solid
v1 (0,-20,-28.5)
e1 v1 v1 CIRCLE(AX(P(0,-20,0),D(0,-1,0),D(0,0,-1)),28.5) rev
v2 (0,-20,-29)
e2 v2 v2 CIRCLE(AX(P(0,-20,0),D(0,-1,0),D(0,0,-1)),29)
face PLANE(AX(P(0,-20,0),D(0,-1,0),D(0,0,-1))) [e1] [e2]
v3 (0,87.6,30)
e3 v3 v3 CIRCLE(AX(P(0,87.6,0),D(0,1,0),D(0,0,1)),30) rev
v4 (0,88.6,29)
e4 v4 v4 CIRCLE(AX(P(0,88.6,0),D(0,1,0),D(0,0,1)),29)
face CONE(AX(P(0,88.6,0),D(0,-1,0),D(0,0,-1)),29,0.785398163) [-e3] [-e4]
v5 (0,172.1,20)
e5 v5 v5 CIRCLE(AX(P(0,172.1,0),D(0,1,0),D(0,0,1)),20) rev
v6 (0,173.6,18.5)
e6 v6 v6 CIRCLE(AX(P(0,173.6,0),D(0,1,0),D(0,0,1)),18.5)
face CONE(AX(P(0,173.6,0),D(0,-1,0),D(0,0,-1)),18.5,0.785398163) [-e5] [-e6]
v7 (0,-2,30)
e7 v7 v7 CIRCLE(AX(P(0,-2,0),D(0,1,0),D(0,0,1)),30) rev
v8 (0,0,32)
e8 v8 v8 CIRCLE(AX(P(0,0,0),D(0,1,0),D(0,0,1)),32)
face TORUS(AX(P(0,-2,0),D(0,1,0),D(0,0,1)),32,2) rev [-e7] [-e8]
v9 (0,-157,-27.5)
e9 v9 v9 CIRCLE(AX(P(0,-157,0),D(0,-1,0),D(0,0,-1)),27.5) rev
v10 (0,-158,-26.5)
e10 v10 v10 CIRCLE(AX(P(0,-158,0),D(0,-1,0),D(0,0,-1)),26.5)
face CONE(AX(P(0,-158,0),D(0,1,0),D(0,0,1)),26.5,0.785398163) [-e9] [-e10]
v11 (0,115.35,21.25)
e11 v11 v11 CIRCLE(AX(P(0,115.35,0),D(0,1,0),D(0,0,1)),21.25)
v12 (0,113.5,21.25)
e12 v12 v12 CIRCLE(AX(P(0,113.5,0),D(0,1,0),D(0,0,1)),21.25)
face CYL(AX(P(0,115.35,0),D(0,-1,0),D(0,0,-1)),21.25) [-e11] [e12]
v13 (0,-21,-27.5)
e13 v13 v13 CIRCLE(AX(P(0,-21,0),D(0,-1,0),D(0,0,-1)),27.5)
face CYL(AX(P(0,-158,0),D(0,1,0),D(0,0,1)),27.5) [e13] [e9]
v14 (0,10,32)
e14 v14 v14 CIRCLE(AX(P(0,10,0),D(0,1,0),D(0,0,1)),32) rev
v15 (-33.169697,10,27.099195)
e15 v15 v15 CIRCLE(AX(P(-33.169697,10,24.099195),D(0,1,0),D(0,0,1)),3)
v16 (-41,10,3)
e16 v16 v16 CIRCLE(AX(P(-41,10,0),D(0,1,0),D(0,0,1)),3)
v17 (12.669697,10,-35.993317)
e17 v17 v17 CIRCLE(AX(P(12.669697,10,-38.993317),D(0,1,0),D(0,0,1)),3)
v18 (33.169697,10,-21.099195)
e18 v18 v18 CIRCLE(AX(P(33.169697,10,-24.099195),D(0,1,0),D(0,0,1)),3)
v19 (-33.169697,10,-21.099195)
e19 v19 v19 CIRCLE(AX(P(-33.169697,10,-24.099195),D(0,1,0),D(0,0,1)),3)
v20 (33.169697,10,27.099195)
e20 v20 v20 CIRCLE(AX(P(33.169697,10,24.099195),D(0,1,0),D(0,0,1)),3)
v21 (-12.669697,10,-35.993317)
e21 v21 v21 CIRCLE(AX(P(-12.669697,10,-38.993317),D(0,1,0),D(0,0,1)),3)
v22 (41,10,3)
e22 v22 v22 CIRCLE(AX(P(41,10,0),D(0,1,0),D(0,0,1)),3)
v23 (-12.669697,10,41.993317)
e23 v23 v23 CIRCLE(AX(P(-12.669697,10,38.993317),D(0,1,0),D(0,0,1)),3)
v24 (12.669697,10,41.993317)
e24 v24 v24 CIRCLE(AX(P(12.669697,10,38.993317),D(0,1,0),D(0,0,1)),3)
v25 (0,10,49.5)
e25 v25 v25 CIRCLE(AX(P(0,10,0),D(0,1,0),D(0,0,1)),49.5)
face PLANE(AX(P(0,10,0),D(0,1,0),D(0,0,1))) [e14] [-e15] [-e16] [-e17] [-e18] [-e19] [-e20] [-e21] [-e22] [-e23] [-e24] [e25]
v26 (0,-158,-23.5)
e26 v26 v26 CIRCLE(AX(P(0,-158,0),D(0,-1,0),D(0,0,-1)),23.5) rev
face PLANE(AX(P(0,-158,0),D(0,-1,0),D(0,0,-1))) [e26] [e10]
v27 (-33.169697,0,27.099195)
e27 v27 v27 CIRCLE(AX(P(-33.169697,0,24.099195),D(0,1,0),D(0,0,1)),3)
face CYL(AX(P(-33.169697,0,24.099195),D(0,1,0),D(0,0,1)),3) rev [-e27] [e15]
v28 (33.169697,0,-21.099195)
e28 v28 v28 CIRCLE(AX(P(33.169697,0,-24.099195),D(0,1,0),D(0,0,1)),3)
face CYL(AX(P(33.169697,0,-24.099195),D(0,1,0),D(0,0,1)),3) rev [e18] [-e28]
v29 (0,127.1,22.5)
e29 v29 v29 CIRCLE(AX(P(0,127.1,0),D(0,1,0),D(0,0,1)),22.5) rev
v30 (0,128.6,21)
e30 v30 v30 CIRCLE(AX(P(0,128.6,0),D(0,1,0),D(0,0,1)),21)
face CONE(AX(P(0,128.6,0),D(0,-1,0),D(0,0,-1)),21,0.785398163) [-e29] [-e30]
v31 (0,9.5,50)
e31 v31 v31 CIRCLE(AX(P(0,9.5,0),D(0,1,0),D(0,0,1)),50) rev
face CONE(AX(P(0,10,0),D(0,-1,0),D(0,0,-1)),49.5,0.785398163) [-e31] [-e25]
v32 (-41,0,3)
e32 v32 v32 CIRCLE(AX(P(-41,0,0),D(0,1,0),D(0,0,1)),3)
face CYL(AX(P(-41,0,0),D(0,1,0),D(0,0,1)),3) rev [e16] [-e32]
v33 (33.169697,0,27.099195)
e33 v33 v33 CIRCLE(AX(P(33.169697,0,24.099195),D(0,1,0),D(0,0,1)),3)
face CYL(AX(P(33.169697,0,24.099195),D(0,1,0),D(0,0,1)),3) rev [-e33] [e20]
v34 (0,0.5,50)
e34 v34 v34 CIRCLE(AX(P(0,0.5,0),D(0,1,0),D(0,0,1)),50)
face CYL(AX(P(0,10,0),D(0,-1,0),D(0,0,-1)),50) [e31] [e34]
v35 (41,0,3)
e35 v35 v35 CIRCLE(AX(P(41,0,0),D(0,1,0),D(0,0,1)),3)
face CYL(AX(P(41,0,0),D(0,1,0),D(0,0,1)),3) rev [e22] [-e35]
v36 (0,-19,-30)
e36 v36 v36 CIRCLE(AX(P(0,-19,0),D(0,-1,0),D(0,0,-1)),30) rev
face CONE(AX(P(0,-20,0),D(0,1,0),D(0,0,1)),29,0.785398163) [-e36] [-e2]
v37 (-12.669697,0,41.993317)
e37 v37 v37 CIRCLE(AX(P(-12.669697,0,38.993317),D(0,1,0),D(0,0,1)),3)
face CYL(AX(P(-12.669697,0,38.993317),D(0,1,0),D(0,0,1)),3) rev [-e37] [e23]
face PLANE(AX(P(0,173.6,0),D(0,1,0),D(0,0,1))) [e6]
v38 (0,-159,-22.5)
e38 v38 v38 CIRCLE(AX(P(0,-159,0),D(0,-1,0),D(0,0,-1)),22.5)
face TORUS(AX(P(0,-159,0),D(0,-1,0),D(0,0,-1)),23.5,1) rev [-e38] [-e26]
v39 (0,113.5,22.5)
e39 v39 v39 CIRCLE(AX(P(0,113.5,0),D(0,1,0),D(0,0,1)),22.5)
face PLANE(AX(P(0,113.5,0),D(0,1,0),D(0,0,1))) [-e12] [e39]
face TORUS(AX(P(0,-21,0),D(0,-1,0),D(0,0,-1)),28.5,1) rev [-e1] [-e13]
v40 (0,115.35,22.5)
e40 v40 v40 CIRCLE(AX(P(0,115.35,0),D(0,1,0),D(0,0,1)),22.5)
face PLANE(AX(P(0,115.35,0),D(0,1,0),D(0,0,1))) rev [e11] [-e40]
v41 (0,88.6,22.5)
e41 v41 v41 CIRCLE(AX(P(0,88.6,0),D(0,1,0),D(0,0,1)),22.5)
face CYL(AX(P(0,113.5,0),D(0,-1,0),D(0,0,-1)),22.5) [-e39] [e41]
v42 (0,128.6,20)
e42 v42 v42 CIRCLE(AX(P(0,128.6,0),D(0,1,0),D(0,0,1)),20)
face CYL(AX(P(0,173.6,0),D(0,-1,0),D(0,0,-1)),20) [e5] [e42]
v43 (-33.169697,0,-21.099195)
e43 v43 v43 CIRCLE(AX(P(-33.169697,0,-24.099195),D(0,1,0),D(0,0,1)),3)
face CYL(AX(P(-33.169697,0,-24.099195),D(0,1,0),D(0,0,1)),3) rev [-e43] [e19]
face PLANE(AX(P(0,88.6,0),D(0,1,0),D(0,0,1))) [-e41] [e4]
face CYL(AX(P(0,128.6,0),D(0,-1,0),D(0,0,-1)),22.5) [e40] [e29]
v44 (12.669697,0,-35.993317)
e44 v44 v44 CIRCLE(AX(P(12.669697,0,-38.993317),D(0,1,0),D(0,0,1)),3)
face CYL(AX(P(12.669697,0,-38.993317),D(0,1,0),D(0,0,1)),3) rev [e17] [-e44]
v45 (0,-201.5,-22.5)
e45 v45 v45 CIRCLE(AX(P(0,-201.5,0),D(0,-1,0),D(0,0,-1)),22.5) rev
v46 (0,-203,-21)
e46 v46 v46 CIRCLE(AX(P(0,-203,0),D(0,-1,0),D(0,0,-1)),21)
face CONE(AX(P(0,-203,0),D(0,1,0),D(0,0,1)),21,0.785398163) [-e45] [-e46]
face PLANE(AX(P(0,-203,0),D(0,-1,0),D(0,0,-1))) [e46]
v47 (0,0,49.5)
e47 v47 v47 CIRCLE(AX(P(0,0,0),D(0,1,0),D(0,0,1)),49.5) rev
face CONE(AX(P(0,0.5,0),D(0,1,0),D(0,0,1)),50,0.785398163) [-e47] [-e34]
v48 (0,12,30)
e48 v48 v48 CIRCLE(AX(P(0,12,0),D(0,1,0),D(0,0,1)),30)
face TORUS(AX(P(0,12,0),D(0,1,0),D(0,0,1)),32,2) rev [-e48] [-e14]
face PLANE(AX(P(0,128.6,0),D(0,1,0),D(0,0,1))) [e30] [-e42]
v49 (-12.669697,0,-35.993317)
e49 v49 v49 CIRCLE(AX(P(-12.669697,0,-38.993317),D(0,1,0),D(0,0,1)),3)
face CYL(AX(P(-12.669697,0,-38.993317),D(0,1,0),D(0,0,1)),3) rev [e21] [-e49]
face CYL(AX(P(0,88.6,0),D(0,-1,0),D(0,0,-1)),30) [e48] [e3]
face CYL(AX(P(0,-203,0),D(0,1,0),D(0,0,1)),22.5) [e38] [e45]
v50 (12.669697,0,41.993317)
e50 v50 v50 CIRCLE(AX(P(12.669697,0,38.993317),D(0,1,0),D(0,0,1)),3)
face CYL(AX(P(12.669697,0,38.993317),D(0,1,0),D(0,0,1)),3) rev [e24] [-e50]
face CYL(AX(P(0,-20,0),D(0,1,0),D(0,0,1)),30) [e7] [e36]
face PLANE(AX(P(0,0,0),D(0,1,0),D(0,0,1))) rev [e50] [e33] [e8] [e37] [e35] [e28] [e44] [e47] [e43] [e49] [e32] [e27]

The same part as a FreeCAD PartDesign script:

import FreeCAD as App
import Part
import Sketcher

V = App.Vector
Q = App.Units.Quantity


def edges_at(feature, points):
    """Names of the edges that pass closest to the given points."""
    edges = feature.Shape.Edges
    near = lambda p: min(range(len(edges)), key=lambda i: edges[i].distToShape(Part.Vertex(*p))[0])
    return sorted({f"Edge{near(p) + 1}" for p in points})

doc = App.newDocument("Part")
body = doc.addObject("PartDesign::Body", "Body")

# Sketch on XZ plane
sketch1 = body.newObject("Sketcher::SketchObject", "Sketch")
sketch1.AttachmentSupport = (doc.getObject("XZ_Plane"), [""])
sketch1.MapMode = "FlatFace"
sketch1.addGeometry(Part.Circle(V(0, 0, 0), V(0, 0, 1), 50), False)
sketch1.addConstraint([
    Sketcher.Constraint("Coincident", 0, 3, -1, 1),
    Sketcher.Constraint("Diameter", 0, Q("100 mm")),
])
pad1 = body.newObject("PartDesign::Pad", "Pad")
pad1.Profile = sketch1
pad1.Length = 10
pad1.Reversed = True

# Sketch on XZ plane
sketch2 = body.newObject("Sketcher::SketchObject", "Sketch001")
sketch2.AttachmentSupport = (doc.getObject("XZ_Plane"), [""])
sketch2.MapMode = "FlatFace"
sketch2.AttachmentOffset = App.Placement(V(0, 0, -10), App.Rotation())
sketch2.addGeometry([
    Part.Circle(V(-33.2, -24.1, 0), V(0, 0, 1), 3),  # 0
    Part.Circle(V(33.2, -24.1, 0), V(0, 0, 1), 3),  # 1
    Part.Circle(V(12.7, -39, 0), V(0, 0, 1), 3),  # 2
    Part.Circle(V(41, 0, 0), V(0, 0, 1), 3),  # 3
    Part.Circle(V(33.2, 24.1, 0), V(0, 0, 1), 3),  # 4
    Part.Circle(V(12.7, 39, 0), V(0, 0, 1), 3),  # 5
    Part.Circle(V(-12.7, 39, 0), V(0, 0, 1), 3),  # 6
    Part.Circle(V(-33.2, 24.1, 0), V(0, 0, 1), 3),  # 7
    Part.Circle(V(-41, 0, 0), V(0, 0, 1), 3),  # 8
    Part.Circle(V(-12.7, -39, 0), V(0, 0, 1), 3),  # 9
], False)
sketch2.addConstraint([
    Sketcher.Constraint("Equal", 0, 1),
    Sketcher.Constraint("Equal", 1, 2),
    Sketcher.Constraint("Equal", 2, 3),
    Sketcher.Constraint("Equal", 3, 4),
    Sketcher.Constraint("Equal", 4, 5),
    Sketcher.Constraint("Equal", 5, 6),
    Sketcher.Constraint("Equal", 6, 7),
    Sketcher.Constraint("Equal", 7, 8),
    Sketcher.Constraint("Equal", 8, 9),
    Sketcher.Constraint("Symmetric", 0, 3, 4, 3, -1, 1),
    Sketcher.Constraint("Symmetric", 2, 3, 6, 3, -1, 1),
    Sketcher.Constraint("Symmetric", 1, 3, 7, 3, -1, 1),
    Sketcher.Constraint("Symmetric", 3, 3, 8, 3, -1, 1),
    Sketcher.Constraint("Symmetric", 5, 3, 9, 3, -1, 1),
    Sketcher.Constraint("Symmetric", 0, 3, 1, 3, -2),
    Sketcher.Constraint("Symmetric", 5, 3, 6, 3, -2),
    Sketcher.Constraint("PointOnObject", 3, 3, -1),
    Sketcher.Constraint("Diameter", 0, Q("6 mm")),
    Sketcher.Constraint("DistanceX", -1, 1, 3, 3, Q("41 mm")),
    Sketcher.Constraint("DistanceX", 2, 3, 1, 3, Q("20.5 mm")),
    Sketcher.Constraint("DistanceY", 2, 3, 1, 3, Q("14.894122 mm")),
    Sketcher.Constraint("DistanceY", 1, 3, 4, 3, Q("48.198391 mm")),
    Sketcher.Constraint("DistanceX", 0, 3, -1, 1, Q("33.169697 mm")),
])
pocket1 = body.newObject("PartDesign::Pocket", "Pocket")
pocket1.Profile = sketch2
pocket1.Length = 10
pocket1.Reversed = True

# Sketch on XZ plane
sketch3 = body.newObject("Sketcher::SketchObject", "Sketch002")
sketch3.AttachmentSupport = (doc.getObject("XZ_Plane"), [""])
sketch3.MapMode = "FlatFace"
sketch3.AttachmentOffset = App.Placement(V(0, 0, -10), App.Rotation())
sketch3.addGeometry(Part.Circle(V(0, 0, 0), V(0, 0, 1), 30), False)
sketch3.addConstraint([
    Sketcher.Constraint("Coincident", 0, 3, -1, 1),
    Sketcher.Constraint("Diameter", 0, Q("60 mm")),
])
pad2 = body.newObject("PartDesign::Pad", "Pad001")
pad2.Profile = sketch3
pad2.Length = 78.6
pad2.Reversed = True
doc.recompute()

fillet = body.newObject("PartDesign::Fillet", "Fillet")
fillet.Base = (pad2, edges_at(pad2, [(0, 10, -30)]))
fillet.Radius = 2
doc.recompute()

chamfer = body.newObject("PartDesign::Chamfer", "Chamfer")
chamfer.Base = (fillet, edges_at(fillet, [(0, 88.6, -30)]))
chamfer.Size = 1

# Sketch on XZ plane
sketch4 = body.newObject("Sketcher::SketchObject", "Sketch003")
sketch4.AttachmentSupport = (doc.getObject("XZ_Plane"), [""])
sketch4.MapMode = "FlatFace"
sketch4.AttachmentOffset = App.Placement(V(0, 0, -88.6), App.Rotation())
sketch4.addGeometry(Part.Circle(V(0, 0, 0), V(0, 0, 1), 22), False)
sketch4.addConstraint([
    Sketcher.Constraint("Coincident", 0, 3, -1, 1),
    Sketcher.Constraint("Diameter", 0, Q("45 mm")),
])
pad3 = body.newObject("PartDesign::Pad", "Pad002")
pad3.Profile = sketch4
pad3.Length = 24.9
pad3.Reversed = True

# Sketch on XZ plane
sketch5 = body.newObject("Sketcher::SketchObject", "Sketch004")
sketch5.AttachmentSupport = (doc.getObject("XZ_Plane"), [""])
sketch5.MapMode = "FlatFace"
sketch5.AttachmentOffset = App.Placement(V(0, 0, -113.5), App.Rotation())
sketch5.addGeometry(Part.Circle(V(0, 0, 0), V(0, 0, 1), 21), False)
sketch5.addConstraint([
    Sketcher.Constraint("Coincident", 0, 3, -1, 1),
    Sketcher.Constraint("Diameter", 0, Q("42.5 mm")),
])
pad4 = body.newObject("PartDesign::Pad", "Pad003")
pad4.Profile = sketch5
pad4.Length = 1.85
pad4.Reversed = True

# Sketch on XZ plane
sketch6 = body.newObject("Sketcher::SketchObject", "Sketch005")
sketch6.AttachmentSupport = (doc.getObject("XZ_Plane"), [""])
sketch6.MapMode = "FlatFace"
sketch6.AttachmentOffset = App.Placement(V(0, 0, -115.35), App.Rotation())
sketch6.addGeometry(Part.Circle(V(0, 0, 0), V(0, 0, 1), 22), False)
sketch6.addConstraint([
    Sketcher.Constraint("Coincident", 0, 3, -1, 1),
    Sketcher.Constraint("Diameter", 0, Q("45 mm")),
])
pad5 = body.newObject("PartDesign::Pad", "Pad004")
pad5.Profile = sketch6
pad5.Length = 13.25
pad5.Reversed = True
doc.recompute()

chamfer2 = body.newObject("PartDesign::Chamfer", "Chamfer001")
chamfer2.Base = (pad5, edges_at(pad5, [(0, 128.6, -22.5)]))
chamfer2.Size = 1.5

# Sketch on XZ plane
sketch7 = body.newObject("Sketcher::SketchObject", "Sketch006")
sketch7.AttachmentSupport = (doc.getObject("XZ_Plane"), [""])
sketch7.MapMode = "FlatFace"
sketch7.AttachmentOffset = App.Placement(V(0, 0, -128.6), App.Rotation())
sketch7.addGeometry(Part.Circle(V(0, 0, 0), V(0, 0, 1), 20), False)
sketch7.addConstraint([
    Sketcher.Constraint("Coincident", 0, 3, -1, 1),
    Sketcher.Constraint("Diameter", 0, Q("40 mm")),
])
pad6 = body.newObject("PartDesign::Pad", "Pad005")
pad6.Profile = sketch7
pad6.Length = 45
pad6.Reversed = True
doc.recompute()

chamfer3 = body.newObject("PartDesign::Chamfer", "Chamfer002")
chamfer3.Base = (pad6, edges_at(pad6, [(0, 173.6, -20)]))
chamfer3.Size = 1.5

# Sketch on XZ plane
sketch8 = body.newObject("Sketcher::SketchObject", "Sketch007")
sketch8.AttachmentSupport = (doc.getObject("XZ_Plane"), [""])
sketch8.MapMode = "FlatFace"
sketch8.addGeometry(Part.Circle(V(0, 0, 0), V(0, 0, 1), 30), False)
sketch8.addConstraint([
    Sketcher.Constraint("Coincident", 0, 3, -1, 1),
    Sketcher.Constraint("Diameter", 0, Q("60 mm")),
])
pad7 = body.newObject("PartDesign::Pad", "Pad006")
pad7.Profile = sketch8
pad7.Length = 20
doc.recompute()

chamfer4 = body.newObject("PartDesign::Chamfer", "Chamfer003")
chamfer4.Base = (pad7, edges_at(pad7, [(0, -20, -30)]))
chamfer4.Size = 1
doc.recompute()

fillet2 = body.newObject("PartDesign::Fillet", "Fillet001")
fillet2.Base = (chamfer4, edges_at(chamfer4, [(0, 0, -30)]))
fillet2.Radius = 2
doc.recompute()

chamfer5 = body.newObject("PartDesign::Chamfer", "Chamfer004")
chamfer5.Base = (fillet2, edges_at(fillet2, [(0, 0, -50)]))
chamfer5.Size = 0.5
doc.recompute()

chamfer6 = body.newObject("PartDesign::Chamfer", "Chamfer005")
chamfer6.Base = (chamfer5, edges_at(chamfer5, [(0, 10, -50)]))
chamfer6.Size = 0.5

# Sketch on XZ plane
sketch9 = body.newObject("Sketcher::SketchObject", "Sketch008")
sketch9.AttachmentSupport = (doc.getObject("XZ_Plane"), [""])
sketch9.MapMode = "FlatFace"
sketch9.AttachmentOffset = App.Placement(V(0, 0, 20), App.Rotation())
sketch9.addGeometry(Part.Circle(V(0, 0, 0), V(0, 0, 1), 28), False)
sketch9.addConstraint([
    Sketcher.Constraint("Coincident", 0, 3, -1, 1),
    Sketcher.Constraint("Diameter", 0, Q("55 mm")),
])
pad8 = body.newObject("PartDesign::Pad", "Pad007")
pad8.Profile = sketch9
pad8.Length = 138

# Sketch on XZ plane
sketch10 = body.newObject("Sketcher::SketchObject", "Sketch009")
sketch10.AttachmentSupport = (doc.getObject("XZ_Plane"), [""])
sketch10.MapMode = "FlatFace"
sketch10.AttachmentOffset = App.Placement(V(0, 0, 158), App.Rotation())
sketch10.addGeometry(Part.Circle(V(0, 0, 0), V(0, 0, 1), 22), False)
sketch10.addConstraint([
    Sketcher.Constraint("Coincident", 0, 3, -1, 1),
    Sketcher.Constraint("Diameter", 0, Q("45 mm")),
])
pad9 = body.newObject("PartDesign::Pad", "Pad008")
pad9.Profile = sketch10
pad9.Length = 45
doc.recompute()

fillet3 = body.newObject("PartDesign::Fillet", "Fillet002")
fillet3.Base = (pad9, edges_at(pad9, [(0, -20, 27.5)]))
fillet3.Radius = 1
doc.recompute()

chamfer7 = body.newObject("PartDesign::Chamfer", "Chamfer006")
chamfer7.Base = (fillet3, edges_at(fillet3, [(0, -158, 27.5)]))
chamfer7.Size = 1
doc.recompute()

fillet4 = body.newObject("PartDesign::Fillet", "Fillet003")
fillet4.Base = (chamfer7, edges_at(chamfer7, [(0, -158, -22.5)]))
fillet4.Radius = 1
doc.recompute()

chamfer8 = body.newObject("PartDesign::Chamfer", "Chamfer007")
chamfer8.Base = (fillet4, edges_at(fillet4, [(0, -203, -22.5)]))
chamfer8.Size = 1.5

doc.recompute()
